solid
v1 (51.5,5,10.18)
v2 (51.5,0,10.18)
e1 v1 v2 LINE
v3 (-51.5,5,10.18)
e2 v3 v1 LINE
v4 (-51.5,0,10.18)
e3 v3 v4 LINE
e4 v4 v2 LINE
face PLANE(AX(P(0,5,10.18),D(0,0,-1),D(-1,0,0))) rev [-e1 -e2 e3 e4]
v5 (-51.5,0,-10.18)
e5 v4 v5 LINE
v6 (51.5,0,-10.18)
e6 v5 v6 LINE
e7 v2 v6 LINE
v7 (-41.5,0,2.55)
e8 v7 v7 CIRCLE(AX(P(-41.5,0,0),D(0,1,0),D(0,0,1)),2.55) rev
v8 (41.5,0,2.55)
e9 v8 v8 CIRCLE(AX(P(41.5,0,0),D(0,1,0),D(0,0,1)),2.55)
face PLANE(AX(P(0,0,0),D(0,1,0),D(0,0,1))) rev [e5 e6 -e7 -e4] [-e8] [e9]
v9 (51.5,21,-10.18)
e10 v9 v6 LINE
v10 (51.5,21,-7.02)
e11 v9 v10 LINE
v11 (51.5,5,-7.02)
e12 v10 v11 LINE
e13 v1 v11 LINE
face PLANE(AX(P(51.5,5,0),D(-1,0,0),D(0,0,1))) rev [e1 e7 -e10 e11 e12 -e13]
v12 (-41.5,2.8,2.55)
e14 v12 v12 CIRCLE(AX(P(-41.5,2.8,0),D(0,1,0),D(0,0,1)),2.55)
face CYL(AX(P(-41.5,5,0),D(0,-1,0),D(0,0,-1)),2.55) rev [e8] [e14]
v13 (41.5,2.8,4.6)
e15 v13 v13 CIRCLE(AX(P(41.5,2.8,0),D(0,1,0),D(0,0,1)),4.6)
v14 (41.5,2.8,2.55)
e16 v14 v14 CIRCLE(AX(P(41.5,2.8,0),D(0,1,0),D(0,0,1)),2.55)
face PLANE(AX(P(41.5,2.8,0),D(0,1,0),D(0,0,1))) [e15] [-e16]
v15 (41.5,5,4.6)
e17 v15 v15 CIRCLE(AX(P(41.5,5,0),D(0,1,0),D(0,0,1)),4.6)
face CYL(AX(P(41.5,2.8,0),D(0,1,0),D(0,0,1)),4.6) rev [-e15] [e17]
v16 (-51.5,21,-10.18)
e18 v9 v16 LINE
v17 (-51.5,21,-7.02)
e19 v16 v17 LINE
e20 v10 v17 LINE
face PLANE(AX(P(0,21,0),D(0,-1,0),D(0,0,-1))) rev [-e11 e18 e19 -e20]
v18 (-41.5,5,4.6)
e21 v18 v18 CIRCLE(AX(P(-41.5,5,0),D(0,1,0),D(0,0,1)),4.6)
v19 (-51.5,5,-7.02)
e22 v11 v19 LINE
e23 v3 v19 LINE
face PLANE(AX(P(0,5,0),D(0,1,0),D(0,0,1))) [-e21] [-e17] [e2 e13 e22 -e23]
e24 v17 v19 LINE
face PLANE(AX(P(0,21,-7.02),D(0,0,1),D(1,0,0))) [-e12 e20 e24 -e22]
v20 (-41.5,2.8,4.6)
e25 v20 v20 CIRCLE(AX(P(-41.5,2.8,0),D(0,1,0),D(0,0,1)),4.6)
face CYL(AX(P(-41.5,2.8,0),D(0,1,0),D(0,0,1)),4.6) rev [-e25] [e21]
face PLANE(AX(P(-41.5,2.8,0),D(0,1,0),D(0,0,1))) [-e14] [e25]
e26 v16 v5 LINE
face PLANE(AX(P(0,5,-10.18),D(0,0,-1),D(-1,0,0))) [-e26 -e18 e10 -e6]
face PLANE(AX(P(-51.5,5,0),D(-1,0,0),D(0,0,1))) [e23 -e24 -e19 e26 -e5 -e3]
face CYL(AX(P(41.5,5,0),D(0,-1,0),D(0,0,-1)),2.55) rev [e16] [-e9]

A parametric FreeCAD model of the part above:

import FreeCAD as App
import Part
import Sketcher

doc = App.newDocument("Part")
body = doc.addObject("PartDesign::Body", "Body")

sketch1 = doc.addObject("Sketcher::SketchObject", "Sketch")
body.addObject(sketch1)
sketch1.AttachmentSupport = (doc.XZ_Plane, [""])
sketch1.MapMode = "FlatFace"
sketch1.addGeometry([
    Part.LineSegment(App.Vector(-51.5, 10.2, 0), App.Vector(51.5, 10.2, 0)),
    Part.LineSegment(App.Vector(51.5, 10.2, 0), App.Vector(51.5, -10.2, 0)),
    Part.LineSegment(App.Vector(51.5, -10.2, 0), App.Vector(-51.5, -10.2, 0)),
    Part.LineSegment(App.Vector(-51.5, -10.2, 0), App.Vector(-51.5, 10.2, 0)),
    Part.Circle(App.Vector(-41.5, 0, 0), App.Vector(0, 0, 1), 2.5),
    Part.Circle(App.Vector(41.5, 0, 0), App.Vector(0, 0, 1), 2.5),
], False)
sketch1.addConstraint([
    Sketcher.Constraint("Coincident", 0, 2, 1, 1),
    Sketcher.Constraint("Coincident", 1, 2, 2, 1),
    Sketcher.Constraint("Coincident", 2, 2, 3, 1),
    Sketcher.Constraint("Coincident", 3, 2, 0, 1),
    Sketcher.Constraint("Horizontal", 0),
    Sketcher.Constraint("Vertical", 1),
    Sketcher.Constraint("Horizontal", 2),
    Sketcher.Constraint("Vertical", 3),
    Sketcher.Constraint("Equal", 4, 5),
    Sketcher.Constraint("Symmetric", 4, 3, 5, 3, -1, 1),
    Sketcher.Constraint("Symmetric", 0, 2, 2, 2, -1, 1),
    Sketcher.Constraint("PointOnObject", 4, 3, -1),
    Sketcher.Constraint("Diameter", 4, 5.1),
    Sketcher.Constraint("DistanceX", 0, 1, 0, 2, 103.0),
    Sketcher.Constraint("DistanceX", 4, 3, 5, 3, 83.0),
    Sketcher.Constraint("DistanceY", 1, 2, 1, 1, 20.36),
])
pad1 = doc.addObject("PartDesign::Pad", "Pad")
body.addObject(pad1)
pad1.Profile = sketch1
pad1.Length = 5
pad1.Reversed = True

sketch2 = doc.addObject("Sketcher::SketchObject", "Sketch001")
body.addObject(sketch2)
sketch2.AttachmentSupport = (doc.XZ_Plane, [""])
sketch2.MapMode = "FlatFace"
sketch2.AttachmentOffset = App.Placement(App.Vector(0, 0, -5), App.Rotation())
sketch2.addGeometry([
    Part.LineSegment(App.Vector(-51.5, -10.2, 0), App.Vector(-51.5, -7, 0)),
    Part.LineSegment(App.Vector(-51.5, -7, 0), App.Vector(51.5, -7, 0)),
    Part.LineSegment(App.Vector(51.5, -7, 0), App.Vector(51.5, -10.2, 0)),
    Part.LineSegment(App.Vector(51.5, -10.2, 0), App.Vector(-51.5, -10.2, 0)),
], False)
sketch2.addConstraint([
    Sketcher.Constraint("Coincident", 0, 2, 1, 1),
    Sketcher.Constraint("Coincident", 1, 2, 2, 1),
    Sketcher.Constraint("Coincident", 2, 2, 3, 1),
    Sketcher.Constraint("Coincident", 3, 2, 0, 1),
    Sketcher.Constraint("Vertical", 0),
    Sketcher.Constraint("Horizontal", 1),
    Sketcher.Constraint("Vertical", 2),
    Sketcher.Constraint("Horizontal", 3),
    Sketcher.Constraint("DistanceX", 1, 1, 1, 2, 103.0),
    Sketcher.Constraint("DistanceY", 0, 1, 0, 2, 3.16),
    Sketcher.Constraint("DistanceX", 0, 2, -1, 1, 51.5),
    Sketcher.Constraint("DistanceY", 0, 2, -1, 1, 7.02),
])
pad2 = doc.addObject("PartDesign::Pad", "Pad001")
body.addObject(pad2)
pad2.Profile = sketch2
pad2.Length = 16
pad2.Reversed = True

sketch3 = doc.addObject("Sketcher::SketchObject", "Sketch002")
body.addObject(sketch3)
sketch3.AttachmentSupport = (doc.XZ_Plane, [""])
sketch3.MapMode = "FlatFace"
sketch3.AttachmentOffset = App.Placement(App.Vector(0, 0, -2.8), App.Rotation())
sketch3.addGeometry([
    Part.Circle(App.Vector(-41.5, 0, 0), App.Vector(0, 0, 1), 4.6),
    Part.Circle(App.Vector(-41.5, 0, 0), App.Vector(0, 0, 1), 2.5),
    Part.Circle(App.Vector(41.5, 0, 0), App.Vector(0, 0, 1), 4.6),
    Part.Circle(App.Vector(41.5, 0, 0), App.Vector(0, 0, 1), 2.5),
], False)
sketch3.addConstraint([
    Sketcher.Constraint("Coincident", 1, 3, 0, 3),
    Sketcher.Constraint("Coincident", 3, 3, 2, 3),
    Sketcher.Constraint("Equal", 0, 2),
    Sketcher.Constraint("Equal", 1, 3),
    Sketcher.Constraint("Symmetric", 0, 3, 2, 3, -1, 1),
    Sketcher.Constraint("PointOnObject", 0, 3, -1),
    Sketcher.Constraint("Diameter", 0, 9.2),
    Sketcher.Constraint("Diameter", 1, 5.1),
    Sketcher.Constraint("DistanceX", 0, 3, 2, 3, 83.0),
])
pocket1 = doc.addObject("PartDesign::Pocket", "Pocket")
body.addObject(pocket1)
pocket1.Profile = sketch3
pocket1.Length = 2.2

doc.recompute()
